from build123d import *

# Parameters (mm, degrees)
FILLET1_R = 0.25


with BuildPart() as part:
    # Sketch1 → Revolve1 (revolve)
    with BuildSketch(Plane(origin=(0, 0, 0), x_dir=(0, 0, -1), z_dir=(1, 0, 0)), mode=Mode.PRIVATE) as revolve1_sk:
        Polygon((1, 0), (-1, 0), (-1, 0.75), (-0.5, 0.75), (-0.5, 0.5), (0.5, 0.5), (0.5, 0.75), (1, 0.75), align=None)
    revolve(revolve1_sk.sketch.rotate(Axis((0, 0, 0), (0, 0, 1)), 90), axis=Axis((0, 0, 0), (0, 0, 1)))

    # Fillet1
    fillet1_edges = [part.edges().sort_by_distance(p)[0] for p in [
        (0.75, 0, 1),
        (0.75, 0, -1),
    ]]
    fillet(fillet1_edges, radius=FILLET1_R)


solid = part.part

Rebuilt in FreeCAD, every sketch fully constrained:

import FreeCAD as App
import Part
import Sketcher
from FreeCAD import Vector


def edges_at(feature, points):
    """Names of the edges that pass closest to the given points."""
    edges = feature.Shape.Edges
    near = lambda p: min(range(len(edges)), key=lambda i: edges[i].distToShape(Part.Vertex(*p))[0])
    return sorted({f"Edge{near(p) + 1}" for p in points})

doc = App.newDocument("Part")
body = doc.addObject("PartDesign::Body", "Body")

# Sketch on YZ plane
sketch1 = body.newObject("Sketcher::SketchObject", "Sketch")
sketch1.AttachmentSupport = (doc.getObject("YZ_Plane"), [""])
sketch1.MapMode = "FlatFace"
sketch1.addGeometry([
    Part.LineSegment(Vector(0, 1, 0), Vector(0, -1, 0)),  # 0
    Part.LineSegment(Vector(0, -1, 0), Vector(0.75, -1, 0)),  # 1
    Part.LineSegment(Vector(0.75, -1, 0), Vector(0.75, -0.5, 0)),  # 2
    Part.LineSegment(Vector(0.75, -0.5, 0), Vector(0.5, -0.5, 0)),  # 3
    Part.LineSegment(Vector(0.5, -0.5, 0), Vector(0.5, 0.5, 0)),  # 4
    Part.LineSegment(Vector(0.5, 0.5, 0), Vector(0.75, 0.5, 0)),  # 5
    Part.LineSegment(Vector(0.75, 0.5, 0), Vector(0.75, 1, 0)),  # 6
    Part.LineSegment(Vector(0.75, 1, 0), Vector(0, 1, 0)),  # 7
], False)
sketch1.addConstraint([
    Sketcher.Constraint("Coincident", 0, 2, 1, 1),
    Sketcher.Constraint("Coincident", 1, 2, 2, 1),
    Sketcher.Constraint("Coincident", 2, 2, 3, 1),
    Sketcher.Constraint("Coincident", 3, 2, 4, 1),
    Sketcher.Constraint("Coincident", 4, 2, 5, 1),
    Sketcher.Constraint("Coincident", 5, 2, 6, 1),
    Sketcher.Constraint("Coincident", 6, 2, 7, 1),
    Sketcher.Constraint("Coincident", 7, 2, 0, 1),
    Sketcher.Constraint("Vertical", 0),
    Sketcher.Constraint("Horizontal", 1),
    Sketcher.Constraint("Vertical", 2),
    Sketcher.Constraint("Horizontal", 3),
    Sketcher.Constraint("Vertical", 4),
    Sketcher.Constraint("Horizontal", 5),
    Sketcher.Constraint("Vertical", 6),
    Sketcher.Constraint("Horizontal", 7),
    Sketcher.Constraint("Symmetric", 0, 2, 7, 2, -1, 1),
    Sketcher.Constraint("Symmetric", 2, 2, 5, 2, -1),
    Sketcher.Constraint("DistanceY", 0, 2, 0, 1, 2.0),
    Sketcher.Constraint("DistanceY", 4, 1, 4, 2, 1.0),
    Sketcher.Constraint("DistanceX", 1, 1, 1, 2, 0.75),
    Sketcher.Constraint("DistanceX", 3, 2, 3, 1, 0.25),
])
revolution = body.newObject("PartDesign::Revolution", "Revolution")
revolution.Profile = sketch1
revolution.ReferenceAxis = (sketch1, ["V_Axis"])
revolution.Angle = 360
doc.recompute()

fillet = body.newObject("PartDesign::Fillet", "Fillet")
fillet.Base = (revolution, edges_at(revolution, [(0.75, 0, 1), (0.75, 0, -1)]))
fillet.Radius = 0.25

doc.recompute()
